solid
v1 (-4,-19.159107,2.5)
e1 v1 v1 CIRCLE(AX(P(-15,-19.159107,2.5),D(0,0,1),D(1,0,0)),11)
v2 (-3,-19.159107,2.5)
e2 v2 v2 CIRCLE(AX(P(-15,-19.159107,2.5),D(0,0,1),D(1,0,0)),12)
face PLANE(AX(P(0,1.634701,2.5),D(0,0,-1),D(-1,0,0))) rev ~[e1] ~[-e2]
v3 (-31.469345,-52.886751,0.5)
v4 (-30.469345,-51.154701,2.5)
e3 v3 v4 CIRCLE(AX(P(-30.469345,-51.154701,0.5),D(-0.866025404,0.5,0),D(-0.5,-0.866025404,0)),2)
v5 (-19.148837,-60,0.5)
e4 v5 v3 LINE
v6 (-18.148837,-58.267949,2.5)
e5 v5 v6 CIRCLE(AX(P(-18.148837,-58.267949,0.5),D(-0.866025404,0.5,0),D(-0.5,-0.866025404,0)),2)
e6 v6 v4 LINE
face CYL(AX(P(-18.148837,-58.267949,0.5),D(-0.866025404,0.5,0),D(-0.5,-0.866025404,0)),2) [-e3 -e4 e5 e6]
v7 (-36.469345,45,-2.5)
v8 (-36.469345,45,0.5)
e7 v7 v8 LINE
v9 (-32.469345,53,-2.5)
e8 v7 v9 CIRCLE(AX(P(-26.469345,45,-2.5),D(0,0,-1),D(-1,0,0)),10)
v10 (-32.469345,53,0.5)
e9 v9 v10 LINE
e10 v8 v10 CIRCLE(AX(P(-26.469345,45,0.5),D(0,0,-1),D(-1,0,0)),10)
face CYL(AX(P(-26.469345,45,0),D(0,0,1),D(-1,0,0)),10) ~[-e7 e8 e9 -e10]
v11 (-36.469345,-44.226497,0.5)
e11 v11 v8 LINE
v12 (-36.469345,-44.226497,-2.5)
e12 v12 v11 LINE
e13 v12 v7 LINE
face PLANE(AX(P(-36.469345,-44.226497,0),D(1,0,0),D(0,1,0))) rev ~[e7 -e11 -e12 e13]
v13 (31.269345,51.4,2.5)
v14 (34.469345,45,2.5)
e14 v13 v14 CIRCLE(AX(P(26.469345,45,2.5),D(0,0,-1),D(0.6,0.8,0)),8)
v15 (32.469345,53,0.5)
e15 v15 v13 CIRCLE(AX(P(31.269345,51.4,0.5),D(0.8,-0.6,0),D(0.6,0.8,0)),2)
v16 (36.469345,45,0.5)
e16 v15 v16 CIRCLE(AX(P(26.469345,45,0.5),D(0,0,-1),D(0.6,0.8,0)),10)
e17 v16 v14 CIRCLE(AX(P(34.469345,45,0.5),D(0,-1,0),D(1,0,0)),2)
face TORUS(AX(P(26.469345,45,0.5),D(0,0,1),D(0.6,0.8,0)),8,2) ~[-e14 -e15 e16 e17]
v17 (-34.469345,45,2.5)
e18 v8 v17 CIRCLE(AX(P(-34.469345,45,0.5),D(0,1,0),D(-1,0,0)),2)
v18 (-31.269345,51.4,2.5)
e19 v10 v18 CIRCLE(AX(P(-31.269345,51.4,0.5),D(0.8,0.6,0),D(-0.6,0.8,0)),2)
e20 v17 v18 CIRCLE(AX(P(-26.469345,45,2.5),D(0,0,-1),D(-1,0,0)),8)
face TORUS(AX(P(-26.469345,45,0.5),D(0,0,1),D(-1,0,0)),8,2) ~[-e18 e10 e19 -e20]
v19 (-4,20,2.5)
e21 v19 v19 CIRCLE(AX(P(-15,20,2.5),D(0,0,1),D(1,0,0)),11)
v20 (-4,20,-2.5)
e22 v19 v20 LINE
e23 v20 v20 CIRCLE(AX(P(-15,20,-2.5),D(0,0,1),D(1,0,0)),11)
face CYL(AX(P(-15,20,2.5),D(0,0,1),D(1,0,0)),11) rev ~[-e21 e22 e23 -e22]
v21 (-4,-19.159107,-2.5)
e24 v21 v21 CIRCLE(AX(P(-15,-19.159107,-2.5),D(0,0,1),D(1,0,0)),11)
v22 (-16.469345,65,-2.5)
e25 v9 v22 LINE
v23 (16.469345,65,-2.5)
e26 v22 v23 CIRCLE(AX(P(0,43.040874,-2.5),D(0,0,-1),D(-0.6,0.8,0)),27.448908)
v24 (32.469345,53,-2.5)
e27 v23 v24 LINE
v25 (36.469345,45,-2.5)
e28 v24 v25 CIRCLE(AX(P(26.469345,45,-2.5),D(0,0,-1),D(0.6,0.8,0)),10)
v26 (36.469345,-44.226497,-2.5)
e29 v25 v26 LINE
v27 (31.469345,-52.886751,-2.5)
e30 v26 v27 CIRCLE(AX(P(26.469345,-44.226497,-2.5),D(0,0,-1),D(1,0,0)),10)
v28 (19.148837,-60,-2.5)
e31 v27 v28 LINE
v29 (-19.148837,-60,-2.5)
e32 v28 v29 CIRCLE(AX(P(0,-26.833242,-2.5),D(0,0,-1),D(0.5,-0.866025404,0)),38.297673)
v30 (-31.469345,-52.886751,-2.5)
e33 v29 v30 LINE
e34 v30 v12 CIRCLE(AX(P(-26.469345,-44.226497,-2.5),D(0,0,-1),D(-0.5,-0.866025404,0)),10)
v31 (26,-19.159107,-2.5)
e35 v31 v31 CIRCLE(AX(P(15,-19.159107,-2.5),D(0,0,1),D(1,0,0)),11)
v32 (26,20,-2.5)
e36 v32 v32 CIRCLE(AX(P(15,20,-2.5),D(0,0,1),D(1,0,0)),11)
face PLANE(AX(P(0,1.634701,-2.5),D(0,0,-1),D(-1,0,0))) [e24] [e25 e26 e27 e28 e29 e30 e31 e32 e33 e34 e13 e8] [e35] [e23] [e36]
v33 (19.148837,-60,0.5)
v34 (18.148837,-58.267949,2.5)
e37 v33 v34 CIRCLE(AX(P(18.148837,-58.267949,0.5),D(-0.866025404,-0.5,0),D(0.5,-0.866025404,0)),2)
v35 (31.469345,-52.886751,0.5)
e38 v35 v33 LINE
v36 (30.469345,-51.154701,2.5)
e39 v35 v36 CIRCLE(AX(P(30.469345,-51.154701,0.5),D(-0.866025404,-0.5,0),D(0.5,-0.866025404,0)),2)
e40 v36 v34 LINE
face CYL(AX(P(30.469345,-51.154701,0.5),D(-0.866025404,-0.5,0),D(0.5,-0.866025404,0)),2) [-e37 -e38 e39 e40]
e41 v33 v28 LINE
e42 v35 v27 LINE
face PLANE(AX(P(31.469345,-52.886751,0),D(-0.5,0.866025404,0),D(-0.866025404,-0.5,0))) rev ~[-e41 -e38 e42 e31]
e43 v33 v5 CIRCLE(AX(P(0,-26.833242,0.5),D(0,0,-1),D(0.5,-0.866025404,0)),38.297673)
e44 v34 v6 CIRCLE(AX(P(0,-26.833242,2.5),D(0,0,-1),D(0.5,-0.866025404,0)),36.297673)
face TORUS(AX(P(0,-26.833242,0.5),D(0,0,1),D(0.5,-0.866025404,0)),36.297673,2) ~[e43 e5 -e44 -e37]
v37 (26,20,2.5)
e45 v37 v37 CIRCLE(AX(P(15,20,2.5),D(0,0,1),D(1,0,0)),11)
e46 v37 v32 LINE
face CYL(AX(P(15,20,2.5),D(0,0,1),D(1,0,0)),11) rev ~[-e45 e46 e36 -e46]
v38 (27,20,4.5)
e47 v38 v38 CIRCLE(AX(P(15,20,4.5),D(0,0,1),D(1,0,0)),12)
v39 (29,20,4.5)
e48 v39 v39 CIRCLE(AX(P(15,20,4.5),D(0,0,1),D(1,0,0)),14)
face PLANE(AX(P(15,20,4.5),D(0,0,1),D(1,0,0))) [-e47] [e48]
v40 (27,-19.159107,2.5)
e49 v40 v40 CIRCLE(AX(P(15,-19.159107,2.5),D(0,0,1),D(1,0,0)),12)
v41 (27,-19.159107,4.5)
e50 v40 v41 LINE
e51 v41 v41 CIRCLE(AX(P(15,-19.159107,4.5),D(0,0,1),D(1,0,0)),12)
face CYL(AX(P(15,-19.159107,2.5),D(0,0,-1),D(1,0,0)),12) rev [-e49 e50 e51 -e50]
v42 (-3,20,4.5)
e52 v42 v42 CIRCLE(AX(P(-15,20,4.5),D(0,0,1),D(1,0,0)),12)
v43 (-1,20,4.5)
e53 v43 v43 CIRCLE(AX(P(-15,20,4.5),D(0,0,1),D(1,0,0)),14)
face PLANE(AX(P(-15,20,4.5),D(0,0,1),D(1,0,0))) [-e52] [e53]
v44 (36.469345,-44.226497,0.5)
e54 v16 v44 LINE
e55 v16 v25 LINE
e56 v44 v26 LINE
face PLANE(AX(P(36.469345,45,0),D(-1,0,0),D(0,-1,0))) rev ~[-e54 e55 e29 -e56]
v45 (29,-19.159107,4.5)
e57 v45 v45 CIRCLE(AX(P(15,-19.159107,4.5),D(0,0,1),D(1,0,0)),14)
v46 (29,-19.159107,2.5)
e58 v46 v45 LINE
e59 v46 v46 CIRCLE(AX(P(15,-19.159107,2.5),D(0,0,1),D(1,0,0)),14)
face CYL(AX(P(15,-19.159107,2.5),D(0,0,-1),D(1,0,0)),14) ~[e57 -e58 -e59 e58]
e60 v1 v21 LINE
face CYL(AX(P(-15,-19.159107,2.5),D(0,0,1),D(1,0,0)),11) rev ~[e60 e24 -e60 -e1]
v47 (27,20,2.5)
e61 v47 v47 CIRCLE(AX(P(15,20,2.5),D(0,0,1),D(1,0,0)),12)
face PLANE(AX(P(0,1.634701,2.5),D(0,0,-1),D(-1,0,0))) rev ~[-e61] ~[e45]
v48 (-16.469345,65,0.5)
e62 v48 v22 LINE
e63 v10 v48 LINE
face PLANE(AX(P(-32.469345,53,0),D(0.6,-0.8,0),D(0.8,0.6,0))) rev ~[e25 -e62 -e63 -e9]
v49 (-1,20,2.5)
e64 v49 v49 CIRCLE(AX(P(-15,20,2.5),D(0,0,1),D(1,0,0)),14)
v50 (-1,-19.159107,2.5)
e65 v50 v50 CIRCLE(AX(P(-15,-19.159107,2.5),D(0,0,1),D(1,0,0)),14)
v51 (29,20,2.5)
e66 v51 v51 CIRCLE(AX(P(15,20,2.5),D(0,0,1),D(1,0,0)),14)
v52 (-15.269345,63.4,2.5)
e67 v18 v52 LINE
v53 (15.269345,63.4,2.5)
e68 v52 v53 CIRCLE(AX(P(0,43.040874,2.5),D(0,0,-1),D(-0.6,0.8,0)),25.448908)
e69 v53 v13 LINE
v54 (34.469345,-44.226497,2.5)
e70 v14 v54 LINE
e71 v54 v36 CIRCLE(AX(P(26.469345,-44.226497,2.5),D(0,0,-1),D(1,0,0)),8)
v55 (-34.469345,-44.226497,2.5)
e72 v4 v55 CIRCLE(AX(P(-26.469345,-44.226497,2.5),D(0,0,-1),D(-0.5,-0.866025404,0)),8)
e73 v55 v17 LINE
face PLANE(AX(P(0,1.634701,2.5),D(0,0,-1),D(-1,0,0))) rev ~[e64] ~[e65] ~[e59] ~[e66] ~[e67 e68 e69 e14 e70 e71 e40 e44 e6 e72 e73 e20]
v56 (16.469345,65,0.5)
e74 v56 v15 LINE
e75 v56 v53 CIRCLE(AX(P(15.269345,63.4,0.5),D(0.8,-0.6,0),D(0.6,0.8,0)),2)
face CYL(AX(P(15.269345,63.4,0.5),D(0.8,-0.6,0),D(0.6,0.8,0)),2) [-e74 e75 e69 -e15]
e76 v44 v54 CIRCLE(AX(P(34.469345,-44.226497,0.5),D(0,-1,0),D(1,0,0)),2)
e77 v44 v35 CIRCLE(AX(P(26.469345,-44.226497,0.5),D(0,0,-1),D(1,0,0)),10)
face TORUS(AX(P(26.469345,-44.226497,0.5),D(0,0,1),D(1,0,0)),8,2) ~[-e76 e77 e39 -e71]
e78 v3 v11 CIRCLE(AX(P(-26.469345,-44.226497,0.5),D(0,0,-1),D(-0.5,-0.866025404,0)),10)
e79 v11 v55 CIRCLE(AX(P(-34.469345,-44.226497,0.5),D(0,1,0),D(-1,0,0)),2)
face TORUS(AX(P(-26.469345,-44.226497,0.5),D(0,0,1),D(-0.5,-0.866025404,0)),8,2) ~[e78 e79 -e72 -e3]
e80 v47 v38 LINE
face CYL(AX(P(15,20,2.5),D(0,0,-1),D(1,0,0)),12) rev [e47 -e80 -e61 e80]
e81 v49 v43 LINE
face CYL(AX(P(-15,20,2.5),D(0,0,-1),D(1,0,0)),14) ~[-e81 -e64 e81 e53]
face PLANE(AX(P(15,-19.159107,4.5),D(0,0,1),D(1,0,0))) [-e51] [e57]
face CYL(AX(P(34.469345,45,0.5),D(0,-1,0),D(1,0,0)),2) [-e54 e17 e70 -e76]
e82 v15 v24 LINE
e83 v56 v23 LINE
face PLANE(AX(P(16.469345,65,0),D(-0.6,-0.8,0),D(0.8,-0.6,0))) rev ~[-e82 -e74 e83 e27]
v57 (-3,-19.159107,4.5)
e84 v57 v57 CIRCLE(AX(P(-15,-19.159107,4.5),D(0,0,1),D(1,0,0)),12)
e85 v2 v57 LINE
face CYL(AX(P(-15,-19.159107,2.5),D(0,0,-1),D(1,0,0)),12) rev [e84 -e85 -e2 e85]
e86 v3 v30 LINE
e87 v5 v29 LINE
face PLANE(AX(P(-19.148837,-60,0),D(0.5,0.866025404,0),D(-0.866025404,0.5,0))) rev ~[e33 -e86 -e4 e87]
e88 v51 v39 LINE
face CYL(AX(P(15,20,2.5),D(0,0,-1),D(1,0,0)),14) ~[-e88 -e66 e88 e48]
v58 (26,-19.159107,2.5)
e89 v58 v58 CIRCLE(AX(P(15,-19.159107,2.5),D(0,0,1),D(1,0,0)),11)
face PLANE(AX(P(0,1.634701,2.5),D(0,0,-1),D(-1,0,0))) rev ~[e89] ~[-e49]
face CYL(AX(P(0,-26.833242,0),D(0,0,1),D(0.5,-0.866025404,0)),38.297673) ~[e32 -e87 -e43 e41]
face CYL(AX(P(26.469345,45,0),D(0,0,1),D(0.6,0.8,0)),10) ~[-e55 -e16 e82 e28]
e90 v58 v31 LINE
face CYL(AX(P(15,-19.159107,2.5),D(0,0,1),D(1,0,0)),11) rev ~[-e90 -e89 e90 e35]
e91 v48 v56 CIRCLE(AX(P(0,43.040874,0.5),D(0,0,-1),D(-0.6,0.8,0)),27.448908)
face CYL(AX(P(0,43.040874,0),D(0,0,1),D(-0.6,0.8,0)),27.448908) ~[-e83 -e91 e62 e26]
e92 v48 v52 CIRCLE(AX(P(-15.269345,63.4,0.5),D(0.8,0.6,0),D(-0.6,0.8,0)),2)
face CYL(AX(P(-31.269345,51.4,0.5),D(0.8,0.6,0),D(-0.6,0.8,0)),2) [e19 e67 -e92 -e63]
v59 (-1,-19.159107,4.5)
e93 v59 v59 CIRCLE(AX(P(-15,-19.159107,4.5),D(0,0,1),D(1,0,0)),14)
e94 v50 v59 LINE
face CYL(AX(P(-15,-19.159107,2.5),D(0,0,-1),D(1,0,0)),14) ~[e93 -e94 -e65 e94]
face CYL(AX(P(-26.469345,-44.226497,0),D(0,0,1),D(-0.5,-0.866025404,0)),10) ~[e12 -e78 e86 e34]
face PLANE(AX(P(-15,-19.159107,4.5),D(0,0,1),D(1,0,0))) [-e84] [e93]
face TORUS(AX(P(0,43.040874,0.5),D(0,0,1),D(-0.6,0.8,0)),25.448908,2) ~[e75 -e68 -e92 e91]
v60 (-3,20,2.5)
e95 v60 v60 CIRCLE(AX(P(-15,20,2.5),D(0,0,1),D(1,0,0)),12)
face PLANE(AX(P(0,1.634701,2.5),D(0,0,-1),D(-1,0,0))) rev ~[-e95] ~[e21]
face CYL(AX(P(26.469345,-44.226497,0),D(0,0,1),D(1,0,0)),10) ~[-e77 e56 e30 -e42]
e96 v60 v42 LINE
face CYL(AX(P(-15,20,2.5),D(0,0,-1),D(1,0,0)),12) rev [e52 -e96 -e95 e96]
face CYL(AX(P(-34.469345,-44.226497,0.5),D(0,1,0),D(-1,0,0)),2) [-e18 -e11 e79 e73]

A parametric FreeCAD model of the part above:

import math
import FreeCAD as App
import Part
import Sketcher

V = App.Vector
Q = App.Units.Quantity


def edges_at(feature, points):
    """Names of the edges that pass closest to the given points."""
    edges = feature.Shape.Edges
    near = lambda p: min(range(len(edges)), key=lambda i: edges[i].distToShape(Part.Vertex(*p))[0])
    return sorted({f"Edge{near(p) + 1}" for p in points})

doc = App.newDocument("Part")
params = doc.addObject("Spreadsheet::Sheet", "Params")
for row, (alias, value) in enumerate([
    ("sketch1_radius", "10 mm"),
    ("sketch1_length", "20 mm"),
    ("pad1_length", "5 mm"),
    ("sketch2_diameter", "22 mm"),
    ("sketch3_diameter", "28 mm"),
    ("sketch3_diameter2", "24 mm"),
    ("pad2_length", "2 mm"),
    ("fillet_radius", "2 mm"),
], start=1):
    params.set(f"A{row}", alias)
    params.set(f"B{row}", "=" + value)
    params.setAlias(f"B{row}", alias)

body = doc.addObject("PartDesign::Body", "Body")

sketch1 = body.newObject("Sketcher::SketchObject", "Sketch")
sketch1.AttachmentSupport = (doc.getObject("XY_Plane"), [""])
sketch1.MapMode = "FlatFace"
sketch1.addGeometry([
    Part.LineSegment(V(-16, 65, 0), V(-32, 53, 0)),
    Part.ArcOfCircle(Part.Circle(V(-26, 45, 0), V(0, 0, 1), 10), math.radians(127), math.radians(180)),
    Part.LineSegment(V(-36, 45, 0), V(-36, -44, 0)),
    Part.ArcOfCircle(Part.Circle(V(-26, -44, 0), V(0, 0, 1), 10), math.radians(180), math.radians(240)),
    Part.LineSegment(V(-31, -53, 0), V(-19, -60, 0)),
    Part.ArcOfCircle(Part.Circle(V(0, -27, 0), V(0, 0, 1), 38), math.radians(-120), math.radians(-60)),
    Part.LineSegment(V(19, -60, 0), V(31, -53, 0)),
    Part.ArcOfCircle(Part.Circle(V(26, -44, 0), V(0, 0, 1), 10), math.radians(-60), math.radians(0)),
    Part.LineSegment(V(36, -44, 0), V(36, 45, 0)),
    Part.ArcOfCircle(Part.Circle(V(26, 45, 0), V(0, 0, 1), 10), math.radians(0), math.radians(53)),
    Part.LineSegment(V(32, 53, 0), V(16, 65, 0)),
    Part.ArcOfCircle(Part.Circle(V(0, 43, 0), V(0, 0, 1), 27), math.radians(53), math.radians(127)),
], False)
sketch1.addConstraint([
    Sketcher.Constraint("Tangent", 0, 2, 1, 1),
    Sketcher.Constraint("Tangent", 1, 2, 2, 1),
    Sketcher.Constraint("Tangent", 2, 2, 3, 1),
    Sketcher.Constraint("Tangent", 3, 2, 4, 1),
    Sketcher.Constraint("Tangent", 4, 2, 5, 1),
    Sketcher.Constraint("Tangent", 5, 2, 6, 1),
    Sketcher.Constraint("Tangent", 6, 2, 7, 1),
    Sketcher.Constraint("Tangent", 7, 2, 8, 1),
    Sketcher.Constraint("Tangent", 8, 2, 9, 1),
    Sketcher.Constraint("Tangent", 9, 2, 10, 1),
    Sketcher.Constraint("Tangent", 10, 2, 11, 1),
    Sketcher.Constraint("Tangent", 11, 2, 0, 1),
    Sketcher.Constraint("Vertical", 2),
    Sketcher.Constraint("Vertical", 8),
    Sketcher.Constraint("Equal", 1, 3),
    Sketcher.Constraint("Equal", 3, 7),
    Sketcher.Constraint("Equal", 7, 9),
    Sketcher.Constraint("Symmetric", 3, 3, 7, 3, -2),
    Sketcher.Constraint("Symmetric", 0, 2, 9, 2, -2),
    Sketcher.Constraint("PointOnObject", 5, 3, -2),
    Sketcher.Constraint("Radius", 1, Q("10 mm")),
    Sketcher.Constraint("Angle", 4, Q("-30 deg")),
    Sketcher.Constraint("Distance", 0, Q("20 mm")),
    Sketcher.Constraint("DistanceY", -1, 1, 1, 3, Q("45 mm")),
    Sketcher.Constraint("DistanceY", -1, 1, 0, 2, Q("53 mm")),
    Sketcher.Constraint("DistanceY", 4, 2, -1, 1, Q("60 mm")),
    Sketcher.Constraint("Radius", 5, Q("38.297673 mm")),
    Sketcher.Constraint("Radius", 11, Q("27.448908 mm")),
])
sketch1.setExpression("Constraints[20]", "Params.sketch1_radius")
sketch1.setExpression("Constraints[22]", "Params.sketch1_length")
pad1 = body.newObject("PartDesign::Pad", "Pad")
pad1.Profile = sketch1
pad1.setExpression("Length", "Params.pad1_length")
pad1.Midplane = True

sketch2 = body.newObject("Sketcher::SketchObject", "Sketch001")
sketch2.AttachmentSupport = (doc.getObject("XY_Plane"), [""])
sketch2.MapMode = "FlatFace"
sketch2.AttachmentOffset = App.Placement(V(0, 0, 2.5), App.Rotation())
sketch2.addGeometry([
    Part.Circle(V(15, -19, 0), V(0, 0, 1), 11),
    Part.Circle(V(-15, -19, 0), V(0, 0, 1), 11),
    Part.Circle(V(-15, 20, 0), V(0, 0, 1), 11),
    Part.Circle(V(15, 20, 0), V(0, 0, 1), 11),
], False)
sketch2.addConstraint([
    Sketcher.Constraint("Equal", 0, 1),
    Sketcher.Constraint("Equal", 1, 2),
    Sketcher.Constraint("Equal", 2, 3),
    Sketcher.Constraint("Symmetric", 0, 3, 1, 3, -2),
    Sketcher.Constraint("Symmetric", 2, 3, 3, 3, -2),
    Sketcher.Constraint("Vertical", 1, 3, 2, 3),
    Sketcher.Constraint("Diameter", 0, Q("22 mm")),
    Sketcher.Constraint("DistanceX", -1, 1, 0, 3, Q("15 mm")),
    Sketcher.Constraint("DistanceY", -1, 1, 2, 3, Q("20 mm")),
    Sketcher.Constraint("DistanceY", 0, 3, -1, 1, Q("19.159107 mm")),
])
sketch2.setExpression("Constraints[6]", "Params.sketch2_diameter")
pocket1 = body.newObject("PartDesign::Pocket", "Pocket")
pocket1.Profile = sketch2
pocket1.Type = "ThroughAll"

sketch3 = body.newObject("Sketcher::SketchObject", "Sketch002")
sketch3.AttachmentSupport = (doc.getObject("XY_Plane"), [""])
sketch3.MapMode = "FlatFace"
sketch3.AttachmentOffset = App.Placement(V(0, 0, 2.5), App.Rotation())
sketch3.addGeometry([
    Part.Circle(V(15, -19, 0), V(0, 0, 1), 14),
    Part.Circle(V(15, -19, 0), V(0, 0, 1), 12),
    Part.Circle(V(-15, 20, 0), V(0, 0, 1), 14),
    Part.Circle(V(-15, 20, 0), V(0, 0, 1), 12),
    Part.Circle(V(15, 20, 0), V(0, 0, 1), 14),
    Part.Circle(V(15, 20, 0), V(0, 0, 1), 12),
    Part.Circle(V(-15, -19, 0), V(0, 0, 1), 14),
    Part.Circle(V(-15, -19, 0), V(0, 0, 1), 12),
], False)
sketch3.addConstraint([
    Sketcher.Constraint("Coincident", 1, 3, 0, 3),
    Sketcher.Constraint("Coincident", 3, 3, 2, 3),
    Sketcher.Constraint("Coincident", 5, 3, 4, 3),
    Sketcher.Constraint("Coincident", 7, 3, 6, 3),
    Sketcher.Constraint("Equal", 0, 2),
    Sketcher.Constraint("Equal", 1, 3),
    Sketcher.Constraint("Equal", 2, 4),
    Sketcher.Constraint("Equal", 3, 5),
    Sketcher.Constraint("Equal", 4, 6),
    Sketcher.Constraint("Equal", 5, 7),
    Sketcher.Constraint("Symmetric", 2, 3, 4, 3, -2),
    Sketcher.Constraint("Symmetric", 0, 3, 6, 3, -2),
    Sketcher.Constraint("Vertical", 1, 3, 4, 3),
    Sketcher.Constraint("Diameter", 0, Q("28 mm")),
    Sketcher.Constraint("Diameter", 1, Q("24 mm")),
    Sketcher.Constraint("DistanceX", -1, 1, 0, 3, Q("15 mm")),
    Sketcher.Constraint("DistanceY", -1, 1, 2, 3, Q("20 mm")),
    Sketcher.Constraint("DistanceY", 0, 3, -1, 1, Q("19.159107 mm")),
])
sketch3.setExpression("Constraints[13]", "Params.sketch3_diameter")
sketch3.setExpression("Constraints[14]", "Params.sketch3_diameter2")
pad2 = body.newObject("PartDesign::Pad", "Pad001")
pad2.Profile = sketch3
pad2.setExpression("Length", "Params.pad2_length")
doc.recompute()

fillet = body.newObject("PartDesign::Fillet", "Fillet")
fillet.Base = (pad2, edges_at(pad2, [
    (-35.414, 49.472, 2.5),
    (-36.469, 0.387, 2.5),
    (-35.13, -49.226, 2.5),
    (-25.309, -56.443, 2.5),
    (0, -65.131, 2.5),
    (25.309, -56.443, 2.5),
    (35.13, -49.226, 2.5),
    (36.469, 0.387, 2.5),
    (35.414, 49.472, 2.5),
    (24.469, 59, 2.5),
    (0, 70.49, 2.5),
    (-24.469, 59, 2.5),
]))
fillet.setExpression("Radius", "Params.fillet_radius")

doc.recompute()
